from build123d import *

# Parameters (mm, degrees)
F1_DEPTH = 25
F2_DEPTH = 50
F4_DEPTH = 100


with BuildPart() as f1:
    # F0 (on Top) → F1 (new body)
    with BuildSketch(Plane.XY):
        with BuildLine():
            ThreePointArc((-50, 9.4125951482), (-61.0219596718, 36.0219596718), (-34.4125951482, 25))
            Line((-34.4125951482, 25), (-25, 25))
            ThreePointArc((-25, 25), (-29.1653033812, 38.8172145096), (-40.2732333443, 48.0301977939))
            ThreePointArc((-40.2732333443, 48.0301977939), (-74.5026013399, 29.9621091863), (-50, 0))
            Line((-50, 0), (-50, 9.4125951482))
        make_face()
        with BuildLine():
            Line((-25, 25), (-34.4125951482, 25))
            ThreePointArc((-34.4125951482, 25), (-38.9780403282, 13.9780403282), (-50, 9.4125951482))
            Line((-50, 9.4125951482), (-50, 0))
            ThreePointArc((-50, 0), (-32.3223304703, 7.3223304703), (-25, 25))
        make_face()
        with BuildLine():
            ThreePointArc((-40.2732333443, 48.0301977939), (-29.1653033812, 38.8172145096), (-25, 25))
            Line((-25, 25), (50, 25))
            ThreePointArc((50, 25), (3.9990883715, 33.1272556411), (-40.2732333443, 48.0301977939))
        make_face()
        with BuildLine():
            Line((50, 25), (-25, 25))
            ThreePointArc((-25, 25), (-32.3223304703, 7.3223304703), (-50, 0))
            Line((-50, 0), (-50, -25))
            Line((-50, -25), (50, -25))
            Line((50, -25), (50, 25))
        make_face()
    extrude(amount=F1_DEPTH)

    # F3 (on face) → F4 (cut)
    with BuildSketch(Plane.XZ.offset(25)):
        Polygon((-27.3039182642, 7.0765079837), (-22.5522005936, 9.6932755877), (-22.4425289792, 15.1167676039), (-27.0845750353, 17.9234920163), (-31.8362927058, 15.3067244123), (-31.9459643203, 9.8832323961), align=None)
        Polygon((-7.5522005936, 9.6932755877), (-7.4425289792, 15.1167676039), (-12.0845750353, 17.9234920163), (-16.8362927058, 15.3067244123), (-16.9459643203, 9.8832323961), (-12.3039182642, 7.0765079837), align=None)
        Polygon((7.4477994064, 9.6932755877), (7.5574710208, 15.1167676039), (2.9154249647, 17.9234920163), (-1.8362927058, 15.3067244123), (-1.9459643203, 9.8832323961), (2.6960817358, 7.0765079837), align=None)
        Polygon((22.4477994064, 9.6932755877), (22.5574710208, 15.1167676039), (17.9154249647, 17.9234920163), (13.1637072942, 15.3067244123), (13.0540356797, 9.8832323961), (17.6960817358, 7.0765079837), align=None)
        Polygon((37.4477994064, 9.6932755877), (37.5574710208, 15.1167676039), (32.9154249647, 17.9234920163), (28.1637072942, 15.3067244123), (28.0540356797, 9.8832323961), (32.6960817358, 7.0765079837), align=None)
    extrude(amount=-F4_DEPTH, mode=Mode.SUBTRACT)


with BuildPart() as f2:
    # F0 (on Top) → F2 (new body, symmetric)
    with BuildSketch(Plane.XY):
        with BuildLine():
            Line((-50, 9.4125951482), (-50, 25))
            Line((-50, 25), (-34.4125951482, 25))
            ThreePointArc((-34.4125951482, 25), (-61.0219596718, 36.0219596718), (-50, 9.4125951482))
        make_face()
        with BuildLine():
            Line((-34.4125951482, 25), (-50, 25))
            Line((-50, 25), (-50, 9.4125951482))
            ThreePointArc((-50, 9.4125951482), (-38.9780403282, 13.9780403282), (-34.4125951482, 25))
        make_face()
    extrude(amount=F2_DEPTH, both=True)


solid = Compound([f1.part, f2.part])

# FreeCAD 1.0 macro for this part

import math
import FreeCAD as App
import Part
import Sketcher
from FreeCAD import Vector
Q = App.Units.Quantity


def add_polygon(sketch, points):
    """Adds a closed chain of lines whose ends are joined by coincident constraints."""
    first, n = sketch.GeometryCount, len(points)
    for a, b in zip(points, points[1:] + points[:1]):
        sketch.addGeometry(Part.LineSegment(App.Vector(*a, 0), App.Vector(*b, 0)), False)
    for i in range(n):
        sketch.addConstraint(Sketcher.Constraint("Coincident", first + i, 2, first + (i + 1) % n, 1))

doc = App.newDocument("Part")
body = doc.addObject("PartDesign::Body", "Body")

# Sketch on XY plane
sketch1 = body.newObject("Sketcher::SketchObject", "Sketch")
sketch1.AttachmentSupport = (doc.getObject("XY_Plane"), [""])
sketch1.MapMode = "FlatFace"
sketch1.addGeometry([
    Part.ArcOfCircle(Part.Circle(Vector(-50, 25, 0), Vector(0, 0, 1), 25), math.radians(67), math.radians(270)),  # 0
    Part.LineSegment(Vector(-50, 0, 0), Vector(-50, -25, 0)),  # 1
    Part.LineSegment(Vector(-50, -25, 0), Vector(50, -25, 0)),  # 2
    Part.LineSegment(Vector(50, -25, 0), Vector(50, 25, 0)),  # 3
    Part.ArcOfCircle(Part.Circle(Vector(81, 336, 0), Vector(0, 0, 1), 312), math.radians(-112.9), math.radians(-95.73)),  # 4
    Part.ArcOfCircle(Part.Circle(Vector(-50, 25, 0), Vector(0, 0, 1), 16), math.radians(0), math.radians(270)),  # 5
    Part.ArcOfCircle(Part.Circle(Vector(-50, 25, 0), Vector(0, 0, 1), 16), math.radians(-90), math.radians(0)),  # 6
], False)
sketch1.addConstraint([
    Sketcher.Constraint("Coincident", 0, 2, 1, 1),
    Sketcher.Constraint("Coincident", 1, 2, 2, 1),
    Sketcher.Constraint("Coincident", 2, 2, 3, 1),
    Sketcher.Constraint("Coincident", 3, 2, 4, 2),
    Sketcher.Constraint("Tangent", 4, 1, 0, 1),
    Sketcher.Constraint("Tangent", 5, 1, 6, 2),
    Sketcher.Constraint("Coincident", 6, 1, 5, 2),
    Sketcher.Constraint("Vertical", 1),
    Sketcher.Constraint("Horizontal", 2),
    Sketcher.Constraint("Vertical", 3),
    Sketcher.Constraint("Coincident", 5, 3, 0, 3),
    Sketcher.Constraint("Symmetric", 1, 2, 3, 2, -1, 1),
    Sketcher.Constraint("PointOnObject", 0, 2, -1),
    Sketcher.Constraint("Horizontal", 6, 3, 3, 2),
    Sketcher.Constraint("Horizontal", 3, 2, 5, 1),
    Sketcher.Constraint("Vertical", 6, 3, 0, 2),
    Sketcher.Constraint("Vertical", 1, 2, 6, 1),
    Sketcher.Constraint("Radius", 0, Q("25 mm")),
    Sketcher.Constraint("DistanceX", 2, 1, 2, 2, Q("100 mm")),
    Sketcher.Constraint("Radius", 4, Q("312.058858 mm")),
    Sketcher.Constraint("Radius", 5, Q("15.587405 mm")),
])
pad1 = body.newObject("PartDesign::Pad", "Pad")
pad1.Profile = sketch1
pad1.Length = 25

# Sketch on XZ plane
sketch2 = body.newObject("Sketcher::SketchObject", "Sketch001")
sketch2.AttachmentSupport = (doc.getObject("XZ_Plane"), [""])
sketch2.MapMode = "FlatFace"
sketch2.AttachmentOffset = App.Placement(Vector(0, 0, 25), App.Rotation())
add_polygon(sketch2, [(-27, 7), (-23, 10), (-22, 15), (-27, 18), (-32, 15), (-32, 10)])  # lines 0-5
add_polygon(sketch2, [(-8, 10), (-7, 15), (-12, 18), (-17, 15), (-17, 10), (-12, 7)])  # lines 6-11
add_polygon(sketch2, [(7, 10), (8, 15), (3, 18), (-2, 15), (-2, 10), (3, 7)])  # lines 12-17
add_polygon(sketch2, [(22, 10), (23, 15), (18, 18), (13, 15), (13, 10), (18, 7)])  # lines 18-23
add_polygon(sketch2, [(37, 10), (38, 15), (33, 18), (28, 15), (28, 10), (33, 7)])  # lines 24-29
sketch2.addConstraint([
    Sketcher.Constraint("Parallel", 0, 3),
    Sketcher.Constraint("Parallel", 1, 4),
    Sketcher.Constraint("Parallel", 2, 5),
    Sketcher.Constraint("Parallel", 4, 6),
    Sketcher.Constraint("Parallel", 5, 7),
    Sketcher.Constraint("Parallel", 3, 8),
    Sketcher.Constraint("Parallel", 6, 9),
    Sketcher.Constraint("Parallel", 7, 10),
    Sketcher.Constraint("Parallel", 8, 11),
    Sketcher.Constraint("Parallel", 9, 12),
    Sketcher.Constraint("Parallel", 10, 13),
    Sketcher.Constraint("Parallel", 11, 14),
    Sketcher.Constraint("Parallel", 12, 15),
    Sketcher.Constraint("Parallel", 13, 16),
    Sketcher.Constraint("Parallel", 14, 17),
    Sketcher.Constraint("Parallel", 15, 18),
    Sketcher.Constraint("Parallel", 16, 19),
    Sketcher.Constraint("Parallel", 17, 20),
    Sketcher.Constraint("Parallel", 18, 21),
    Sketcher.Constraint("Parallel", 19, 22),
    Sketcher.Constraint("Parallel", 20, 23),
    Sketcher.Constraint("Parallel", 21, 24),
    Sketcher.Constraint("Parallel", 22, 25),
    Sketcher.Constraint("Parallel", 23, 26),
    Sketcher.Constraint("Parallel", 24, 27),
    Sketcher.Constraint("Parallel", 25, 28),
    Sketcher.Constraint("Parallel", 26, 29),
    Sketcher.Constraint("Horizontal", 1, 2, 6, 2),
    Sketcher.Constraint("Horizontal", 2, 2, 7, 2),
    Sketcher.Constraint("Horizontal", 3, 2, 8, 2),
    Sketcher.Constraint("Horizontal", 4, 2, 9, 2),
    Sketcher.Constraint("Horizontal", 5, 2, 10, 2),
    Sketcher.Constraint("Horizontal", 6, 2, 12, 2),
    Sketcher.Constraint("Horizontal", 7, 2, 13, 2),
    Sketcher.Constraint("Horizontal", 8, 2, 14, 2),
    Sketcher.Constraint("Horizontal", 9, 2, 15, 2),
    Sketcher.Constraint("Horizontal", 10, 2, 16, 2),
    Sketcher.Constraint("Horizontal", 12, 2, 18, 2),
    Sketcher.Constraint("Horizontal", 13, 2, 19, 2),
    Sketcher.Constraint("Horizontal", 14, 2, 20, 2),
    Sketcher.Constraint("Horizontal", 15, 2, 21, 2),
    Sketcher.Constraint("Horizontal", 16, 2, 22, 2),
    Sketcher.Constraint("Horizontal", 18, 2, 24, 2),
    Sketcher.Constraint("Horizontal", 19, 2, 25, 2),
    Sketcher.Constraint("Horizontal", 20, 2, 26, 2),
    Sketcher.Constraint("Horizontal", 21, 2, 27, 2),
    Sketcher.Constraint("Horizontal", 22, 2, 28, 2),
    Sketcher.Constraint("Equal", 0, 1),
    Sketcher.Constraint("Equal", 1, 2),
    Sketcher.Constraint("Equal", 2, 3),
    Sketcher.Constraint("DistanceX", 1, 2, 6, 2, Q("15 mm")),
    Sketcher.Constraint("DistanceX", 6, 2, 12, 2, Q("15 mm")),
    Sketcher.Constraint("DistanceX", 12, 2, 18, 2, Q("15 mm")),
    Sketcher.Constraint("DistanceX", 18, 2, 24, 2, Q("15 mm")),
    Sketcher.Constraint("Distance", 0, Q("5.424601 mm")),
    Sketcher.Constraint("DistanceX", 0, 2, -1, 1, Q("22.552201 mm")),
    Sketcher.Constraint("DistanceX", 1, 2, -1, 1, Q("22.442529 mm")),
    Sketcher.Constraint("DistanceX", 5, 2, -1, 1, Q("27.303918 mm")),
    Sketcher.Constraint("DistanceY", 0, 2, 3, 2, Q("5.613449 mm")),
    Sketcher.Constraint("DistanceY", -1, 1, 0, 2, Q("9.693276 mm")),
])
pocket1 = body.newObject("PartDesign::Pocket", "Pocket")
pocket1.Profile = sketch2
pocket1.Length = 100
body2 = doc.addObject("PartDesign::Body", "Body001")

# Sketch on XY plane
sketch3 = body2.newObject("Sketcher::SketchObject", "Sketch002")
sketch3.AttachmentSupport = (doc.getObject("XY_Plane001"), [""])
sketch3.MapMode = "FlatFace"
sketch3.addGeometry([
    Part.ArcOfCircle(Part.Circle(Vector(-50, 25, 0), Vector(0, 0, 1), 16), math.radians(0), math.radians(270)),
    Part.ArcOfCircle(Part.Circle(Vector(-50, 25, 0), Vector(0, 0, 1), 16), math.radians(-90), math.radians(0)),
], False)
sketch3.addConstraint([
    Sketcher.Constraint("Tangent", 0, 1, 1, 2),
    Sketcher.Constraint("Coincident", 1, 1, 0, 2),
    Sketcher.Constraint("Horizontal", 1, 3, 0, 1),
    Sketcher.Constraint("Vertical", 0, 3, 1, 1),
    Sketcher.Constraint("DistanceX", 0, 3, -1, 1, Q("50 mm")),
    Sketcher.Constraint("DistanceY", -1, 1, 0, 3, Q("25 mm")),
    Sketcher.Constraint("Radius", 0, Q("15.587405 mm")),
])
pad2 = body2.newObject("PartDesign::Pad", "Pad001")
pad2.Profile = sketch3
pad2.Length = 100
pad2.Midplane = True

doc.recompute()
